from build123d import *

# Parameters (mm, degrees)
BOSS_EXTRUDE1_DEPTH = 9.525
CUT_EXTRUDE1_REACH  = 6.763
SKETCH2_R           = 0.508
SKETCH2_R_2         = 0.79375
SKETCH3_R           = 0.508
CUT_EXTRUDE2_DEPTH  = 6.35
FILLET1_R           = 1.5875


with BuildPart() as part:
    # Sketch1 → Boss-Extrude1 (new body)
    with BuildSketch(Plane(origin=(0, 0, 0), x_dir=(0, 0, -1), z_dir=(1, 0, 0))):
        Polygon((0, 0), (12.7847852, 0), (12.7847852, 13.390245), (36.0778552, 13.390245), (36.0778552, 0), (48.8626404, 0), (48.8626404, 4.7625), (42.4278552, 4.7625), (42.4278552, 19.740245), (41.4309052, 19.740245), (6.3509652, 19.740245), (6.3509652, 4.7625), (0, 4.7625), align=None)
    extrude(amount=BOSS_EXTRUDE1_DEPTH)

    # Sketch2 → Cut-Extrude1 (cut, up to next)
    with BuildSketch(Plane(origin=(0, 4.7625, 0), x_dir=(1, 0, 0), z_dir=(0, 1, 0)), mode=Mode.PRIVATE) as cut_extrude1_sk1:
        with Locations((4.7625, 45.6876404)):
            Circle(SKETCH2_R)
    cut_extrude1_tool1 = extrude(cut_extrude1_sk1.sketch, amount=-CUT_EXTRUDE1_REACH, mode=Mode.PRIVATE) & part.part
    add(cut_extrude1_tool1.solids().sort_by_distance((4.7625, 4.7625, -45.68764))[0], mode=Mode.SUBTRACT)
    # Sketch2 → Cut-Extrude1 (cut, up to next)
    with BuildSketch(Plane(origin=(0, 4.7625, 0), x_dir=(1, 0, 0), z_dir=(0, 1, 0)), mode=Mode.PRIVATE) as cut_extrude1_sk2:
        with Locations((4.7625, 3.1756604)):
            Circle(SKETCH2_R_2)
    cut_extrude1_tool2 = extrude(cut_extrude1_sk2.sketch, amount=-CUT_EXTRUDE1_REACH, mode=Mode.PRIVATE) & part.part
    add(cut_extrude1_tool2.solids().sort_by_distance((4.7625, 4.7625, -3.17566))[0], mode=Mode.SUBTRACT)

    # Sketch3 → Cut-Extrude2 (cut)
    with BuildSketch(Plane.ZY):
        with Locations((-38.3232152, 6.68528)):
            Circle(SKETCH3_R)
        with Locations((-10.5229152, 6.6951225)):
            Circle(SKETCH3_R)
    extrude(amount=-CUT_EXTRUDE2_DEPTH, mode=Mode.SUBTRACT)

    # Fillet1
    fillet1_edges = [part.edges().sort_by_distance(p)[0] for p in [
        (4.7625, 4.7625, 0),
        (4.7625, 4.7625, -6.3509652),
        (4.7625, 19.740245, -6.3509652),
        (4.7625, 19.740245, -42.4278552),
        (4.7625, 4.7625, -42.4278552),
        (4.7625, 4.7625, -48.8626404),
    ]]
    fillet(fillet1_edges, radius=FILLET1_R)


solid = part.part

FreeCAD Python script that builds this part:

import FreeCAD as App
import Part
import Sketcher
from FreeCAD import Vector
Q = App.Units.Quantity


def edges_at(feature, points):
    """Names of the edges that pass closest to the given points."""
    edges = feature.Shape.Edges
    near = lambda p: min(range(len(edges)), key=lambda i: edges[i].distToShape(Part.Vertex(*p))[0])
    return sorted({f"Edge{near(p) + 1}" for p in points})

doc = App.newDocument("Part")
body = doc.addObject("PartDesign::Body", "Body")

sketch1 = doc.addObject("Sketcher::SketchObject", "Sketch")
body.addObject(sketch1)
sketch1.AttachmentSupport = (doc.YZ_Plane, [""])
sketch1.MapMode = "FlatFace"
sketch1.addGeometry([
    Part.LineSegment(Vector(0, 0, 0), Vector(0, -12.8, 0)),
    Part.LineSegment(Vector(0, -12.8, 0), Vector(13.4, -12.8, 0)),
    Part.LineSegment(Vector(13.4, -12.8, 0), Vector(13.4, -36.1, 0)),
    Part.LineSegment(Vector(13.4, -36.1, 0), Vector(0, -36.1, 0)),
    Part.LineSegment(Vector(0, -36.1, 0), Vector(0, -48.9, 0)),
    Part.LineSegment(Vector(0, -48.9, 0), Vector(4.8, -48.9, 0)),
    Part.LineSegment(Vector(4.8, -48.9, 0), Vector(4.8, -42.4, 0)),
    Part.LineSegment(Vector(4.8, -42.4, 0), Vector(19.7, -42.4, 0)),
    Part.LineSegment(Vector(19.7, -42.4, 0), Vector(19.7, -6.4, 0)),
    Part.LineSegment(Vector(19.7, -6.4, 0), Vector(4.8, -6.4, 0)),
    Part.LineSegment(Vector(4.8, -6.4, 0), Vector(4.8, 0, 0)),
    Part.LineSegment(Vector(4.8, 0, 0), Vector(0, 0, 0)),
], False)
sketch1.addConstraint([
    Sketcher.Constraint("Coincident", 0, 2, 1, 1),
    Sketcher.Constraint("Coincident", 1, 2, 2, 1),
    Sketcher.Constraint("Coincident", 2, 2, 3, 1),
    Sketcher.Constraint("Coincident", 3, 2, 4, 1),
    Sketcher.Constraint("Coincident", 4, 2, 5, 1),
    Sketcher.Constraint("Coincident", 5, 2, 6, 1),
    Sketcher.Constraint("Coincident", 6, 2, 7, 1),
    Sketcher.Constraint("Coincident", 7, 2, 8, 1),
    Sketcher.Constraint("Coincident", 8, 2, 9, 1),
    Sketcher.Constraint("Coincident", 9, 2, 10, 1),
    Sketcher.Constraint("Coincident", 10, 2, 11, 1),
    Sketcher.Constraint("Coincident", 11, 2, 0, 1),
    Sketcher.Constraint("Vertical", 0),
    Sketcher.Constraint("Horizontal", 1),
    Sketcher.Constraint("Vertical", 2),
    Sketcher.Constraint("Horizontal", 3),
    Sketcher.Constraint("Vertical", 4),
    Sketcher.Constraint("Horizontal", 5),
    Sketcher.Constraint("Vertical", 6),
    Sketcher.Constraint("Horizontal", 7),
    Sketcher.Constraint("Vertical", 8),
    Sketcher.Constraint("Horizontal", 9),
    Sketcher.Constraint("Vertical", 10),
    Sketcher.Constraint("Horizontal", 11),
    Sketcher.Constraint("Coincident", 11, 2, -1, 1),
    Sketcher.Constraint("PointOnObject", 3, 2, -2),
    Sketcher.Constraint("Vertical", 6, 2, 9, 2),
    Sketcher.Constraint("Equal", 0, 4),
    Sketcher.Constraint("DistanceX", 5, 1, 5, 2, Q("0.1875 in")),
    Sketcher.Constraint("DistanceY", 6, 2, 3, 2, Q("0.25 in")),
    Sketcher.Constraint("DistanceX", 2, 2, 7, 2, Q("0.25 in")),
    Sketcher.Constraint("DistanceY", 1, 2, 8, 2, Q("0.2533 in")),
    Sketcher.Constraint("DistanceY", 2, 2, 2, 1, 23.29307),
    Sketcher.Constraint("DistanceX", 1, 1, 1, 2, 13.390245),
    Sketcher.Constraint("DistanceY", 0, 2, 0, 1, 12.784785),
])
pad1 = doc.addObject("PartDesign::Pad", "Pad")
body.addObject(pad1)
pad1.Profile = sketch1
pad1.Length = Q("0.375 in")

sketch2 = doc.addObject("Sketcher::SketchObject", "Sketch001")
body.addObject(sketch2)
sketch2.AttachmentSupport = (doc.XZ_Plane, [""])
sketch2.MapMode = "FlatFace"
sketch2.AttachmentOffset = App.Placement(Vector(0, 0, -0.1875 * 25.4), App.Rotation())
sketch2.addGeometry(Part.Circle(Vector(4.8, -45.7, 0), Vector(0, 0, 1), 0.5), False)
sketch2.addConstraint([
    Sketcher.Constraint("Diameter", 0, Q("0.04 in")),
    Sketcher.Constraint("DistanceX", -1, 1, 0, 3, Q("0.1875 in")),
    Sketcher.Constraint("DistanceY", 0, 3, -1, 1, 45.68764),
])
pocket1 = doc.addObject("PartDesign::Pocket", "Pocket")
body.addObject(pocket1)
pocket1.Profile = sketch2
pocket1.Type = "UpToFirst"
pocket1.Reversed = True

sketch3 = doc.addObject("Sketcher::SketchObject", "Sketch002")
body.addObject(sketch3)
sketch3.AttachmentSupport = (doc.XZ_Plane, [""])
sketch3.MapMode = "FlatFace"
sketch3.AttachmentOffset = App.Placement(Vector(0, 0, -0.1875 * 25.4), App.Rotation())
sketch3.addGeometry(Part.Circle(Vector(4.8, -3.2, 0), Vector(0, 0, 1), 0.8), False)
sketch3.addConstraint([
    Sketcher.Constraint("Diameter", 0, Q("0.0625 in")),
    Sketcher.Constraint("DistanceX", -1, 1, 0, 3, Q("0.1875 in")),
    Sketcher.Constraint("DistanceY", 0, 3, -1, 1, 3.17566),
])
pocket2 = doc.addObject("PartDesign::Pocket", "Pocket001")
body.addObject(pocket2)
pocket2.Profile = sketch3
pocket2.Type = "UpToFirst"
pocket2.Reversed = True

sketch4 = doc.addObject("Sketcher::SketchObject", "Sketch003")
body.addObject(sketch4)
sketch4.AttachmentSupport = (doc.YZ_Plane, [""])
sketch4.MapMode = "FlatFace"
sketch4.addGeometry([
    Part.Circle(Vector(6.7, -38.3, 0), Vector(0, 0, 1), 0.5),
    Part.Circle(Vector(6.7, -10.5, 0), Vector(0, 0, 1), 0.5),
], False)
sketch4.addConstraint([
    Sketcher.Constraint("Equal", 0, 1),
    Sketcher.Constraint("Diameter", 0, Q("0.04 in")),
    Sketcher.Constraint("DistanceX", -1, 1, 0, 3, Q("0.2632 in")),
    Sketcher.Constraint("DistanceY", 0, 3, 1, 3, Q("1.0945 in")),
    Sketcher.Constraint("DistanceY", 0, 3, -1, 1, 38.323215),
    Sketcher.Constraint("DistanceX", -1, 1, 1, 3, 6.695123),
])
pocket3 = doc.addObject("PartDesign::Pocket", "Pocket002")
body.addObject(pocket3)
pocket3.Profile = sketch4
pocket3.Length = Q("0.25 in")
pocket3.Reversed = True
doc.recompute()

fillet = doc.addObject("PartDesign::Fillet", "Fillet")
body.addObject(fillet)
fillet.Base = (pocket3, edges_at(pocket3, [
    (4.763, 4.763, 0),
    (4.763, 4.763, -6.351),
    (4.763, 19.74, -6.351),
    (4.763, 19.74, -42.428),
    (4.763, 4.763, -42.428),
    (4.763, 4.763, -48.863),
]))
fillet.Radius = Q("0.0625 in")

doc.recompute()
